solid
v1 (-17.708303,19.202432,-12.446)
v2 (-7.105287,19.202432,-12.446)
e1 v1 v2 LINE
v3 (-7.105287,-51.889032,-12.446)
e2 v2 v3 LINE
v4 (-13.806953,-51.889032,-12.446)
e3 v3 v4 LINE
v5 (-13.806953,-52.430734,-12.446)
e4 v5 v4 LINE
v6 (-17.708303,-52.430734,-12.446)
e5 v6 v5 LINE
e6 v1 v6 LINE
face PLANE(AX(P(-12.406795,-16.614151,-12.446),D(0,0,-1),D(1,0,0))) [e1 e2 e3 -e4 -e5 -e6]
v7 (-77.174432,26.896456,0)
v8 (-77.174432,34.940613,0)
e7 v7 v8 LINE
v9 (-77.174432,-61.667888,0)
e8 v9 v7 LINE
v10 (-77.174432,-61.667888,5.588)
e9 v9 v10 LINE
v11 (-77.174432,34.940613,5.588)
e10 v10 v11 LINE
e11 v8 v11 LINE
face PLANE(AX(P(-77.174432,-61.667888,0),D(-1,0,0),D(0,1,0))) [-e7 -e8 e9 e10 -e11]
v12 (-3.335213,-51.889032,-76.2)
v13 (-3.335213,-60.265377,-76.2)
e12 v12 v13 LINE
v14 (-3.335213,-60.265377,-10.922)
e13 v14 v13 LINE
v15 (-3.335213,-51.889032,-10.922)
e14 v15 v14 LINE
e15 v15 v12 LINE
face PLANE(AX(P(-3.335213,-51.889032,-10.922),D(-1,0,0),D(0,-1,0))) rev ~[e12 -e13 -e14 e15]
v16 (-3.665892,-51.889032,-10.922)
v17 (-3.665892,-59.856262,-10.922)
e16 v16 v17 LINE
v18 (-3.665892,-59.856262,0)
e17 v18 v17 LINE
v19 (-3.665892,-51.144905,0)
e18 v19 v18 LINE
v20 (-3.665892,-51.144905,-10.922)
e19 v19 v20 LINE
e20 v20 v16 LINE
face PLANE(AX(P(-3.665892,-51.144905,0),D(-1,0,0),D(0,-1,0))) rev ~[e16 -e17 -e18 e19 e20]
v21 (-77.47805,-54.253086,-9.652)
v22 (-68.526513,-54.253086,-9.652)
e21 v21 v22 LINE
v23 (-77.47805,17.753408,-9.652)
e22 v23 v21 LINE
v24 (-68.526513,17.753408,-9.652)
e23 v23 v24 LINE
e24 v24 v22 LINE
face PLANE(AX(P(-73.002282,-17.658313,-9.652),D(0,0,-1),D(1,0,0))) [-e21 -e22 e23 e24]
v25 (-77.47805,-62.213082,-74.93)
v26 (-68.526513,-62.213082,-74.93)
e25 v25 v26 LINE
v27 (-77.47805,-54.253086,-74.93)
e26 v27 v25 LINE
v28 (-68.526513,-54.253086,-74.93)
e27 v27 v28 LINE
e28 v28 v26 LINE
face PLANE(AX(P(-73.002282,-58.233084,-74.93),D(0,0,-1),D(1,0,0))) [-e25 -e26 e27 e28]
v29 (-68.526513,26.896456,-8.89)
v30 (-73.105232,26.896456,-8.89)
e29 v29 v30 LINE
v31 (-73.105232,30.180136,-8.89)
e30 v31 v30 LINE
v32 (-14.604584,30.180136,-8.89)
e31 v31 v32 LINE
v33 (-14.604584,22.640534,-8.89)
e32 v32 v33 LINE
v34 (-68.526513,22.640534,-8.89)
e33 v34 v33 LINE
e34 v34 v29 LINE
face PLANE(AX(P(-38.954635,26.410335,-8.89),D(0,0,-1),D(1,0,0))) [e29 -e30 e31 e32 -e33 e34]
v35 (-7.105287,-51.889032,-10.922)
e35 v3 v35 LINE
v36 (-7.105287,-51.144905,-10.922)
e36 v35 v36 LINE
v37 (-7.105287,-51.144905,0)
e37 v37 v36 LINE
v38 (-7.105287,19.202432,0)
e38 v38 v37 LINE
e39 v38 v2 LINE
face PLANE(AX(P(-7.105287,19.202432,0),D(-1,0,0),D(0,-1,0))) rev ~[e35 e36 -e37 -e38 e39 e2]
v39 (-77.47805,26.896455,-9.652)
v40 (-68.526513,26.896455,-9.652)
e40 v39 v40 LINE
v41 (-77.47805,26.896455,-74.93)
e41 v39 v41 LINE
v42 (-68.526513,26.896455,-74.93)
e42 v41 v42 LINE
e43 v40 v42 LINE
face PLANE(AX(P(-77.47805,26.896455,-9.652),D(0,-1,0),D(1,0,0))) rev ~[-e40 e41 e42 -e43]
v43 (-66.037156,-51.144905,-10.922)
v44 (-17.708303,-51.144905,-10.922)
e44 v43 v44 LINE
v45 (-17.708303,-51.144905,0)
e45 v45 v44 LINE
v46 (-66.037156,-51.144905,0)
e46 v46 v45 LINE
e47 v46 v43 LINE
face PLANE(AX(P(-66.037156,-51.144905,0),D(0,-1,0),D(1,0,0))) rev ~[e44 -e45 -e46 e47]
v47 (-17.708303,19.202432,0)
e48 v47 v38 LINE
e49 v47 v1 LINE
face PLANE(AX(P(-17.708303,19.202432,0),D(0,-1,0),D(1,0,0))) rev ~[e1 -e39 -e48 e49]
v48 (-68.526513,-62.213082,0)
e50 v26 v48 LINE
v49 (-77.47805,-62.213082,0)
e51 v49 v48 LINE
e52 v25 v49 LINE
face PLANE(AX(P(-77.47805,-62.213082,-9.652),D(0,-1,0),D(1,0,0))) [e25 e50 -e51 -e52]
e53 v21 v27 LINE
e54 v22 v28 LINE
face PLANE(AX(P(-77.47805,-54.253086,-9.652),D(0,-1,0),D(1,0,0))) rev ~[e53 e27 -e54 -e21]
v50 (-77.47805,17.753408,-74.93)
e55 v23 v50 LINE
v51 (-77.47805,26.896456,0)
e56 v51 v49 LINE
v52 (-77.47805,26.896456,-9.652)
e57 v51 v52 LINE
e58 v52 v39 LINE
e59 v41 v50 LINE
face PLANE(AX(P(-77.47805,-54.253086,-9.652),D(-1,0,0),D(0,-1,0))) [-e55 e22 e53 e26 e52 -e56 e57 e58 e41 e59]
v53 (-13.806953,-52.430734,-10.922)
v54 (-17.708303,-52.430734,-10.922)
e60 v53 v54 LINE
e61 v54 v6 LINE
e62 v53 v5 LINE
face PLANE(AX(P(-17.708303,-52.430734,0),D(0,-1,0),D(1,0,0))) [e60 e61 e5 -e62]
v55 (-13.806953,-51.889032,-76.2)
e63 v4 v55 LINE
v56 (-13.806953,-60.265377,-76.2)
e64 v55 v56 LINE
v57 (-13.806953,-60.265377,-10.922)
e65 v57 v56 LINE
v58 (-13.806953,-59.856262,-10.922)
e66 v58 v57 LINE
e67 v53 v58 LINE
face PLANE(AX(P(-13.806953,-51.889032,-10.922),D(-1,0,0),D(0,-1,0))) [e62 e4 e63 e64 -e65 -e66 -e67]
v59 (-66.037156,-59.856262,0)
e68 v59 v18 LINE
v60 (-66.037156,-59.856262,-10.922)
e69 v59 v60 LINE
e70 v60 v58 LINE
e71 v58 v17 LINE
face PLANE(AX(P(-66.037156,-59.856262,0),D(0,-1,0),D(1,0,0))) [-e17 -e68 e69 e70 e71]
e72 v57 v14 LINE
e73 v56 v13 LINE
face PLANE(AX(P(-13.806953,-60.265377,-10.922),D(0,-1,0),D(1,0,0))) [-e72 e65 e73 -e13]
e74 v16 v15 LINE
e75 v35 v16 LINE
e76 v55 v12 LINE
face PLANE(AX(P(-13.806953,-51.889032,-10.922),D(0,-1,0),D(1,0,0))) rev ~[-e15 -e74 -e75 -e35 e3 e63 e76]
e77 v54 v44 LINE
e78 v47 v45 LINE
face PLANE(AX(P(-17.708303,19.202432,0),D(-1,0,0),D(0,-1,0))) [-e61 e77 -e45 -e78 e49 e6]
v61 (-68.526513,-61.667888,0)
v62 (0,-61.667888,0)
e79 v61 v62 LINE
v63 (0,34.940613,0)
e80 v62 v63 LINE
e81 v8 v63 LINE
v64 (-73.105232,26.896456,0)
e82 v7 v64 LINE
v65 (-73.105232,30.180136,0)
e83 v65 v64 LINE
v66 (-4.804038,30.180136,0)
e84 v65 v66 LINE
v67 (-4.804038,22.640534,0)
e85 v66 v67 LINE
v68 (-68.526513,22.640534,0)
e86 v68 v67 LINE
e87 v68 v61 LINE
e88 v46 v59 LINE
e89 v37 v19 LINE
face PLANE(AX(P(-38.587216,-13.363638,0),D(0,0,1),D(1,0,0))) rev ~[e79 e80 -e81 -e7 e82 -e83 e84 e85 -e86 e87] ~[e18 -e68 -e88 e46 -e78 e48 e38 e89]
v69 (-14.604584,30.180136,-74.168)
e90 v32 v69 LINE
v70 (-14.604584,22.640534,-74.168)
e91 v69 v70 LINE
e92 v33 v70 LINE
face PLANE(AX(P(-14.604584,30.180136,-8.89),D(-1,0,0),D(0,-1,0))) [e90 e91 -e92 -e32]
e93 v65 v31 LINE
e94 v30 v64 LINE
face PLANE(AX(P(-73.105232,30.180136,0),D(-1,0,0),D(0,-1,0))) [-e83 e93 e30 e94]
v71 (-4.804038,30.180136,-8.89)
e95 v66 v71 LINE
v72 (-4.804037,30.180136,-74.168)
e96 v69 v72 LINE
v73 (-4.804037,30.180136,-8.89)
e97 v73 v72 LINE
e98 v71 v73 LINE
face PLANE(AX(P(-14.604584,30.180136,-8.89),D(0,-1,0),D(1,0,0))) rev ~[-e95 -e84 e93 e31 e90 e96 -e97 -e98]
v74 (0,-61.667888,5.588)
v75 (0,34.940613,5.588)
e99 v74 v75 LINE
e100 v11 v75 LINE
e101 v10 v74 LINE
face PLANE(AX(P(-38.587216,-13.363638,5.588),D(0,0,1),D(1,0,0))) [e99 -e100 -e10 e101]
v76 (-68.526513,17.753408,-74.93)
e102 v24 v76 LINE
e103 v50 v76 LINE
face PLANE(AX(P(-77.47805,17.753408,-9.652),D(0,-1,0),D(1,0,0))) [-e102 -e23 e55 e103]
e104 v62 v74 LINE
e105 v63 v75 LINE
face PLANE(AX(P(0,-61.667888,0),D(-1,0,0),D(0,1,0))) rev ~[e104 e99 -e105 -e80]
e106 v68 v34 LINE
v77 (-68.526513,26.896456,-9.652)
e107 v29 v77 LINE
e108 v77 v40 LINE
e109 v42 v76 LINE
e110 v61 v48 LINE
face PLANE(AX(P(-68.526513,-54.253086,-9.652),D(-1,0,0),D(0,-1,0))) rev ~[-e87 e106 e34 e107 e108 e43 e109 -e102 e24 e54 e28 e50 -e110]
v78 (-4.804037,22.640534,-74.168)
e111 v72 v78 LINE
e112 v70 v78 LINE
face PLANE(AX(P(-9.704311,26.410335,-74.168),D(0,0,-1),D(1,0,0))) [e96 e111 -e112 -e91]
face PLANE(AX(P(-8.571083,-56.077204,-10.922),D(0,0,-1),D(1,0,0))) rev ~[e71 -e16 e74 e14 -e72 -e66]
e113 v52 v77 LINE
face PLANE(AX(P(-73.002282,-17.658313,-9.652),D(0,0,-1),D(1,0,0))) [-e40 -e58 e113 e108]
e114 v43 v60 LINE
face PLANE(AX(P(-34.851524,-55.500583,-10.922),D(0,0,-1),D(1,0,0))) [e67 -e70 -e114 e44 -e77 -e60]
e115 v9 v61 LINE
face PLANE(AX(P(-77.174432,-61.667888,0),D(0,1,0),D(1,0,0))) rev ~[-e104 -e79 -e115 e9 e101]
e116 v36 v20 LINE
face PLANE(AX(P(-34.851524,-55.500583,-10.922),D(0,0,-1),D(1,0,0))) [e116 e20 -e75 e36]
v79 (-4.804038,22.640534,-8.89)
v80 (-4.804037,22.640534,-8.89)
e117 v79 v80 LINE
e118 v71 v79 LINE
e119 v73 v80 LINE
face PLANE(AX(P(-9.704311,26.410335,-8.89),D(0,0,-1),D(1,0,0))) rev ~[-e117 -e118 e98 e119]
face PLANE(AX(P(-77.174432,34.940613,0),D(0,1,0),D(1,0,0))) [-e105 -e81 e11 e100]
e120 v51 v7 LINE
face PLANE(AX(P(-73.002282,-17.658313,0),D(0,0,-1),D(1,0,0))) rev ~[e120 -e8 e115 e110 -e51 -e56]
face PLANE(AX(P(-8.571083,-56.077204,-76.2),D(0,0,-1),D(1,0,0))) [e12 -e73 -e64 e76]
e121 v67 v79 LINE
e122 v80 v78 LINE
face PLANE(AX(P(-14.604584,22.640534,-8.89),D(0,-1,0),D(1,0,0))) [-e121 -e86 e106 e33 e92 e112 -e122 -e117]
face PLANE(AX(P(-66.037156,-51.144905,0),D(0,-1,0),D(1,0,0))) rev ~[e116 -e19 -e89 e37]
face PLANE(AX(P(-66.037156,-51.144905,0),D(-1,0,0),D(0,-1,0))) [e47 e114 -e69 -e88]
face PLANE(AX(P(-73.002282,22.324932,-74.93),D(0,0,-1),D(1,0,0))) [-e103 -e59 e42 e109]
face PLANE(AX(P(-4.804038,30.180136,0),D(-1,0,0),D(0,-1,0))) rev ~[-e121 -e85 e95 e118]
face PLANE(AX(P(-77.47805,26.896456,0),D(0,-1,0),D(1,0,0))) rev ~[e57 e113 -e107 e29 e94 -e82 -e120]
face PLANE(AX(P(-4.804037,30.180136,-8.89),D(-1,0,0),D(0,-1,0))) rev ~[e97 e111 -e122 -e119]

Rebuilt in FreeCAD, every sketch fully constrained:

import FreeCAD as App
import Part
import Sketcher

V = App.Vector
Q = App.Units.Quantity


def add_polygon(sketch, points):
    """Adds a closed chain of lines whose ends are joined by coincident constraints."""
    first, n = sketch.GeometryCount, len(points)
    for a, b in zip(points, points[1:] + points[:1]):
        sketch.addGeometry(Part.LineSegment(App.Vector(*a, 0), App.Vector(*b, 0)), False)
    for i in range(n):
        sketch.addConstraint(Sketcher.Constraint("Coincident", first + i, 2, first + (i + 1) % n, 1))

doc = App.newDocument("Part")
body = doc.addObject("PartDesign::Body", "Body")

# Sketch on XY plane
sketch1 = doc.addObject("Sketcher::SketchObject", "Sketch")
body.addObject(sketch1)
sketch1.AttachmentSupport = (doc.XY_Plane, [""])
sketch1.MapMode = "FlatFace"
add_polygon(sketch1, [(-77.174432, 34.940613), (-77.174432, -61.667888), (0, -61.667888), (0, 34.940613)])  # lines 0-3
sketch1.addConstraint(Sketcher.Constraint("Vertical", 0))
sketch1.addConstraint(Sketcher.Constraint("Horizontal", 1))
sketch1.addConstraint(Sketcher.Constraint("Vertical", 2))
sketch1.addConstraint(Sketcher.Constraint("Horizontal", 3))
sketch1.addConstraint(Sketcher.Constraint("PointOnObject", 1, 2, -2))
sketch1.addConstraint(Sketcher.Constraint("DistanceY", 0, 2, 0, 1, Q("96.608501 mm")))
sketch1.addConstraint(Sketcher.Constraint("DistanceX", 1, 1, 1, 2, Q("77.174433 mm")))
sketch1.addConstraint(Sketcher.Constraint("DistanceY", 0, 2, -1, 1, Q("61.667888 mm")))
pad1 = doc.addObject("PartDesign::Pad", "Pad")
body.addObject(pad1)
pad1.Profile = sketch1
pad1.Length = Q("0.22 in")

# Sketch on XY plane
sketch2 = doc.addObject("Sketcher::SketchObject", "Sketch001")
body.addObject(sketch2)
sketch2.AttachmentSupport = (doc.XY_Plane, [""])
sketch2.MapMode = "FlatFace"
add_polygon(sketch2, [(-73.105232, 22.640534), (-73.105232, 30.180136), (-4.804038, 30.180136), (-4.804038, 22.640534)])  # lines 0-3
sketch2.addConstraint(Sketcher.Constraint("Vertical", 0))
sketch2.addConstraint(Sketcher.Constraint("Horizontal", 1))
sketch2.addConstraint(Sketcher.Constraint("Vertical", 2))
sketch2.addConstraint(Sketcher.Constraint("Horizontal", 3))
sketch2.addConstraint(Sketcher.Constraint("DistanceX", 1, 1, 1, 2, Q("68.301193 mm")))
sketch2.addConstraint(Sketcher.Constraint("DistanceY", 0, 1, 0, 2, Q("7.539602 mm")))
sketch2.addConstraint(Sketcher.Constraint("DistanceX", 0, 2, -1, 1, Q("73.105232 mm")))
sketch2.addConstraint(Sketcher.Constraint("DistanceY", -1, 1, 0, 2, Q("30.180136 mm")))
pad2 = doc.addObject("PartDesign::Pad", "Pad001")
body.addObject(pad2)
pad2.Profile = sketch2
pad2.Length = Q("0.35 in")
pad2.Reversed = True

# Sketch on XY plane
sketch3 = doc.addObject("Sketcher::SketchObject", "Sketch002")
body.addObject(sketch3)
sketch3.AttachmentSupport = (doc.XY_Plane, [""])
sketch3.MapMode = "FlatFace"
add_polygon(sketch3, [(-77.47805, -62.213082), (-77.47805, 26.896456), (-68.526513, 26.896456), (-68.526513, -62.213082)])  # lines 0-3
sketch3.addConstraint(Sketcher.Constraint("Vertical", 0))
sketch3.addConstraint(Sketcher.Constraint("Horizontal", 1))
sketch3.addConstraint(Sketcher.Constraint("Vertical", 2))
sketch3.addConstraint(Sketcher.Constraint("Horizontal", 3))
sketch3.addConstraint(Sketcher.Constraint("DistanceY", 0, 1, 0, 2, Q("89.109538 mm")))
sketch3.addConstraint(Sketcher.Constraint("DistanceX", 1, 1, 1, 2, Q("8.951537 mm")))
sketch3.addConstraint(Sketcher.Constraint("DistanceX", 0, 2, -1, 1, Q("77.47805 mm")))
sketch3.addConstraint(Sketcher.Constraint("DistanceY", -1, 1, 0, 2, Q("26.896456 mm")))
pad3 = doc.addObject("PartDesign::Pad", "Pad002")
body.addObject(pad3)
pad3.Profile = sketch3
pad3.Length = Q("0.38 in")
pad3.Reversed = True

# Sketch on XY plane
sketch4 = doc.addObject("Sketcher::SketchObject", "Sketch003")
body.addObject(sketch4)
sketch4.AttachmentSupport = (doc.XY_Plane, [""])
sketch4.MapMode = "FlatFace"
add_polygon(sketch4, [(-66.037156, -59.856262), (-66.037156, -51.144905), (-3.665892, -51.144905), (-3.665892, -59.856262)])  # lines 0-3
sketch4.addConstraint(Sketcher.Constraint("Vertical", 0))
sketch4.addConstraint(Sketcher.Constraint("Horizontal", 1))
sketch4.addConstraint(Sketcher.Constraint("Vertical", 2))
sketch4.addConstraint(Sketcher.Constraint("Horizontal", 3))
sketch4.addConstraint(Sketcher.Constraint("DistanceX", 1, 1, 1, 2, Q("62.371264 mm")))
sketch4.addConstraint(Sketcher.Constraint("DistanceY", 0, 1, 0, 2, Q("8.711357 mm")))
sketch4.addConstraint(Sketcher.Constraint("DistanceX", 1, 2, -1, 1, Q("3.665892 mm")))
sketch4.addConstraint(Sketcher.Constraint("DistanceY", 2, 2, -1, 1, Q("59.856262 mm")))
pad4 = doc.addObject("PartDesign::Pad", "Pad003")
body.addObject(pad4)
pad4.Profile = sketch4
pad4.Length = Q("0.43 in")
pad4.Reversed = True

# Sketch on XY plane
sketch5 = doc.addObject("Sketcher::SketchObject", "Sketch004")
body.addObject(sketch5)
sketch5.AttachmentSupport = (doc.XY_Plane, [""])
sketch5.MapMode = "FlatFace"
add_polygon(sketch5, [(-17.708303, -52.430734), (-17.708303, 19.202432), (-7.105287, 19.202432), (-7.105287, -52.430734)])  # lines 0-3
sketch5.addConstraint(Sketcher.Constraint("Vertical", 0))
sketch5.addConstraint(Sketcher.Constraint("Horizontal", 1))
sketch5.addConstraint(Sketcher.Constraint("Vertical", 2))
sketch5.addConstraint(Sketcher.Constraint("Horizontal", 3))
sketch5.addConstraint(Sketcher.Constraint("DistanceX", 1, 1, 1, 2, Q("10.603017 mm")))
sketch5.addConstraint(Sketcher.Constraint("DistanceY", 0, 1, 0, 2, Q("71.633166 mm")))
sketch5.addConstraint(Sketcher.Constraint("DistanceX", 0, 2, -1, 1, Q("17.708303 mm")))
sketch5.addConstraint(Sketcher.Constraint("DistanceY", -1, 1, 0, 2, Q("19.202432 mm")))
pad5 = doc.addObject("PartDesign::Pad", "Pad004")
body.addObject(pad5)
pad5.Profile = sketch5
pad5.Length = Q("0.49 in")
pad5.Reversed = True

# Sketch on XY plane
sketch6 = doc.addObject("Sketcher::SketchObject", "Sketch005")
body.addObject(sketch6)
sketch6.AttachmentSupport = (doc.XY_Plane, [""])
sketch6.MapMode = "FlatFace"
sketch6.AttachmentOffset = App.Placement(V(0, 0, -0.38 * 25.4), App.Rotation())
add_polygon(sketch6, [(-77.47805, -62.213082), (-77.47805, -54.253086), (-68.526513, -54.253086), (-68.526513, -62.213082)])  # lines 0-3
sketch6.addConstraint(Sketcher.Constraint("Vertical", 0))
sketch6.addConstraint(Sketcher.Constraint("Horizontal", 1))
sketch6.addConstraint(Sketcher.Constraint("Vertical", 2))
sketch6.addConstraint(Sketcher.Constraint("Horizontal", 3))
sketch6.addConstraint(Sketcher.Constraint("DistanceX", 1, 1, 1, 2, Q("8.951537 mm")))
sketch6.addConstraint(Sketcher.Constraint("DistanceY", 0, 1, 0, 2, Q("7.959996 mm")))
sketch6.addConstraint(Sketcher.Constraint("DistanceX", 0, 2, -1, 1, Q("77.47805 mm")))
sketch6.addConstraint(Sketcher.Constraint("DistanceY", 0, 2, -1, 1, Q("54.253086 mm")))
pad6 = doc.addObject("PartDesign::Pad", "Pad005")
body.addObject(pad6)
pad6.Profile = sketch6
pad6.Length = Q("2.57 in")
pad6.Reversed = True

# Sketch on XY plane
sketch7 = doc.addObject("Sketcher::SketchObject", "Sketch006")
body.addObject(sketch7)
sketch7.AttachmentSupport = (doc.XY_Plane, [""])
sketch7.MapMode = "FlatFace"
sketch7.AttachmentOffset = App.Placement(V(0, 0, -0.38 * 25.4), App.Rotation())
add_polygon(sketch7, [(-77.47805, 17.753408), (-77.47805, 26.896455), (-68.526513, 26.896455), (-68.526513, 17.753408)])  # lines 0-3
sketch7.addConstraint(Sketcher.Constraint("Vertical", 0))
sketch7.addConstraint(Sketcher.Constraint("Horizontal", 1))
sketch7.addConstraint(Sketcher.Constraint("Vertical", 2))
sketch7.addConstraint(Sketcher.Constraint("Horizontal", 3))
sketch7.addConstraint(Sketcher.Constraint("DistanceX", 1, 1, 1, 2, Q("8.951537 mm")))
sketch7.addConstraint(Sketcher.Constraint("DistanceY", 0, 1, 0, 2, Q("9.143047 mm")))
sketch7.addConstraint(Sketcher.Constraint("DistanceX", 0, 2, -1, 1, Q("77.47805 mm")))
sketch7.addConstraint(Sketcher.Constraint("DistanceY", -1, 1, 2, 2, Q("17.753408 mm")))
pad7 = doc.addObject("PartDesign::Pad", "Pad006")
body.addObject(pad7)
pad7.Profile = sketch7
pad7.Length = Q("2.57 in")
pad7.Reversed = True

# Sketch on XY plane
sketch8 = doc.addObject("Sketcher::SketchObject", "Sketch007")
body.addObject(sketch8)
sketch8.AttachmentSupport = (doc.XY_Plane, [""])
sketch8.MapMode = "FlatFace"
sketch8.AttachmentOffset = App.Placement(V(0, 0, -0.43 * 25.4), App.Rotation())
add_polygon(sketch8, [(-13.806953, -60.265377), (-13.806953, -51.889032), (-3.335213, -51.889032), (-3.335213, -60.265377)])  # lines 0-3
sketch8.addConstraint(Sketcher.Constraint("Vertical", 0))
sketch8.addConstraint(Sketcher.Constraint("Horizontal", 1))
sketch8.addConstraint(Sketcher.Constraint("Vertical", 2))
sketch8.addConstraint(Sketcher.Constraint("Horizontal", 3))
sketch8.addConstraint(Sketcher.Constraint("DistanceX", 1, 1, 1, 2, Q("10.47174 mm")))
sketch8.addConstraint(Sketcher.Constraint("DistanceY", 0, 1, 0, 2, Q("8.376345 mm")))
sketch8.addConstraint(Sketcher.Constraint("DistanceY", 0, 2, -1, 1, Q("51.889032 mm")))
sketch8.addConstraint(Sketcher.Constraint("DistanceX", 0, 2, -1, 1, Q("13.806953 mm")))
pad8 = doc.addObject("PartDesign::Pad", "Pad007")
body.addObject(pad8)
pad8.Profile = sketch8
pad8.Length = Q("2.57 in")
pad8.Reversed = True

# Sketch on XY plane
sketch9 = doc.addObject("Sketcher::SketchObject", "Sketch008")
body.addObject(sketch9)
sketch9.AttachmentSupport = (doc.XY_Plane, [""])
sketch9.MapMode = "FlatFace"
sketch9.AttachmentOffset = App.Placement(V(0, 0, -0.35 * 25.4), App.Rotation())
add_polygon(sketch9, [(-14.604584, 22.640534), (-14.604584, 30.180136), (-4.804037, 30.180136), (-4.804037, 22.640534)])  # lines 0-3
sketch9.addConstraint(Sketcher.Constraint("Vertical", 0))
sketch9.addConstraint(Sketcher.Constraint("Horizontal", 1))
sketch9.addConstraint(Sketcher.Constraint("Vertical", 2))
sketch9.addConstraint(Sketcher.Constraint("Horizontal", 3))
sketch9.addConstraint(Sketcher.Constraint("DistanceX", 1, 1, 1, 2, Q("9.800547 mm")))
sketch9.addConstraint(Sketcher.Constraint("DistanceY", 0, 1, 0, 2, Q("7.539602 mm")))
sketch9.addConstraint(Sketcher.Constraint("DistanceX", 0, 2, -1, 1, Q("14.604584 mm")))
sketch9.addConstraint(Sketcher.Constraint("DistanceY", -1, 1, 0, 2, Q("30.180136 mm")))
pad9 = doc.addObject("PartDesign::Pad", "Pad008")
body.addObject(pad9)
pad9.Profile = sketch9
pad9.Length = Q("2.57 in")
pad9.Reversed = True

doc.recompute()
